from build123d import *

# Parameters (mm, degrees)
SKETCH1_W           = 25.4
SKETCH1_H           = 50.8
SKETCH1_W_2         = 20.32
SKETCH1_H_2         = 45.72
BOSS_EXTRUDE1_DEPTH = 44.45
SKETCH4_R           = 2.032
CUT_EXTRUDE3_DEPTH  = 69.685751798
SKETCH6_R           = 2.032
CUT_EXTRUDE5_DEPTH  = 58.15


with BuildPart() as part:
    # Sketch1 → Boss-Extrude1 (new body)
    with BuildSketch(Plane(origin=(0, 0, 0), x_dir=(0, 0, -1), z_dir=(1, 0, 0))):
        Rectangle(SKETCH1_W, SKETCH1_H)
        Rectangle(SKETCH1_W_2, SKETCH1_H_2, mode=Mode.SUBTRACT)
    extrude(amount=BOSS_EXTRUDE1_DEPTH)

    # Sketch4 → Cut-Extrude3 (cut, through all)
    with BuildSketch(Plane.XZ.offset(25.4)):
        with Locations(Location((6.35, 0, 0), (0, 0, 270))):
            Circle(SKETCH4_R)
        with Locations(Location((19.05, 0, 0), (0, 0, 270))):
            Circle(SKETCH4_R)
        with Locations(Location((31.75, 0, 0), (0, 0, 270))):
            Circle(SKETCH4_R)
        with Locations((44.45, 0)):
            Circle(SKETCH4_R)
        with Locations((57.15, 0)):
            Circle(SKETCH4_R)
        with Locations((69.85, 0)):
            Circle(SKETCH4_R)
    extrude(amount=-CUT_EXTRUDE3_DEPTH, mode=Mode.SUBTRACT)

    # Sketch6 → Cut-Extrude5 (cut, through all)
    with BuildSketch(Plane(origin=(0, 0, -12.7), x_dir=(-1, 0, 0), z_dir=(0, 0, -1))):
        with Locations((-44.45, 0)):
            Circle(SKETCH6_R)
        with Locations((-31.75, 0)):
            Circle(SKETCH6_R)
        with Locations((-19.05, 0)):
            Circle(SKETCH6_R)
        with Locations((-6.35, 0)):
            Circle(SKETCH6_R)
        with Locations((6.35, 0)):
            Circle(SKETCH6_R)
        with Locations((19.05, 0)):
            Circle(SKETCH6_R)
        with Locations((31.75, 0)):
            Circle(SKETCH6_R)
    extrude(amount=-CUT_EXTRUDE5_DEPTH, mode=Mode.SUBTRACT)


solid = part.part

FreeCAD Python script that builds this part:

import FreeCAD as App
import Part
import Sketcher
from FreeCAD import Vector
Q = App.Units.Quantity

doc = App.newDocument("Part")
body = doc.addObject("PartDesign::Body", "Body")

# Sketch on YZ plane
sketch1 = body.newObject("Sketcher::SketchObject", "Sketch")
sketch1.AttachmentSupport = (doc.getObject("YZ_Plane"), [""])
sketch1.MapMode = "FlatFace"
sketch1.addGeometry(Part.LineSegment(Vector(25, 13, 0), Vector(-25, 13, 0)), False)
sketch1.addGeometry(Part.LineSegment(Vector(-25, 13, 0), Vector(-25, -13, 0)), False)
sketch1.addGeometry(Part.LineSegment(Vector(-25, -13, 0), Vector(25, -13, 0)), False)
sketch1.addGeometry(Part.LineSegment(Vector(25, -13, 0), Vector(25, 13, 0)), False)
sketch1.addGeometry(Part.LineSegment(Vector(-23, -10, 0), Vector(-23, 10, 0)), False)
sketch1.addGeometry(Part.LineSegment(Vector(-23, 10, 0), Vector(23, 10, 0)), False)
sketch1.addGeometry(Part.LineSegment(Vector(23, 10, 0), Vector(23, -10, 0)), False)
sketch1.addGeometry(Part.LineSegment(Vector(23, -10, 0), Vector(-23, -10, 0)), False)
sketch1.addConstraint(Sketcher.Constraint("Coincident", 0, 2, 1, 1))
sketch1.addConstraint(Sketcher.Constraint("Coincident", 1, 2, 2, 1))
sketch1.addConstraint(Sketcher.Constraint("Coincident", 2, 2, 3, 1))
sketch1.addConstraint(Sketcher.Constraint("Coincident", 3, 2, 0, 1))
sketch1.addConstraint(Sketcher.Constraint("Coincident", 4, 2, 5, 1))
sketch1.addConstraint(Sketcher.Constraint("Coincident", 5, 2, 6, 1))
sketch1.addConstraint(Sketcher.Constraint("Coincident", 6, 2, 7, 1))
sketch1.addConstraint(Sketcher.Constraint("Coincident", 7, 2, 4, 1))
sketch1.addConstraint(Sketcher.Constraint("Horizontal", 0))
sketch1.addConstraint(Sketcher.Constraint("Vertical", 1))
sketch1.addConstraint(Sketcher.Constraint("Horizontal", 2))
sketch1.addConstraint(Sketcher.Constraint("Vertical", 3))
sketch1.addConstraint(Sketcher.Constraint("Vertical", 4))
sketch1.addConstraint(Sketcher.Constraint("Horizontal", 5))
sketch1.addConstraint(Sketcher.Constraint("Vertical", 6))
sketch1.addConstraint(Sketcher.Constraint("Horizontal", 7))
sketch1.addConstraint(Sketcher.Constraint("Symmetric", 0, 2, 2, 2, -1, 1))
sketch1.addConstraint(Sketcher.Constraint("Symmetric", 4, 2, 6, 2, -1, 1))
sketch1.addConstraint(Sketcher.Constraint("DistanceX", 0, 2, 0, 1, Q("2 in")))
sketch1.addConstraint(Sketcher.Constraint("DistanceY", 1, 2, 1, 1, Q("1 in")))
sketch1.addConstraint(Sketcher.Constraint("DistanceX", 5, 1, 5, 2, Q("1.8 in")))
sketch1.addConstraint(Sketcher.Constraint("DistanceY", 4, 1, 4, 2, Q("0.8 in")))
pad1 = body.newObject("PartDesign::Pad", "Pad")
pad1.Profile = sketch1
pad1.Length = Q("1.75 in")

# Sketch on XZ plane
sketch2 = body.newObject("Sketcher::SketchObject", "Sketch001")
sketch2.AttachmentSupport = (doc.getObject("XZ_Plane"), [""])
sketch2.MapMode = "FlatFace"
sketch2.AttachmentOffset = App.Placement(Vector(0, 0, 1 * 25.4), App.Rotation())
sketch2.addGeometry(Part.Circle(Vector(6.3, 0, 0), Vector(0, 0, 1), 2), False)
sketch2.addGeometry(Part.Circle(Vector(19.1, 0, 0), Vector(0, 0, 1), 2), False)
sketch2.addGeometry(Part.Circle(Vector(31.8, 0, 0), Vector(0, 0, 1), 2), False)
sketch2.addGeometry(Part.Circle(Vector(44.5, 0, 0), Vector(0, 0, 1), 2), False)
sketch2.addGeometry(Part.Circle(Vector(57.1, 0, 0), Vector(0, 0, 1), 2), False)
sketch2.addGeometry(Part.Circle(Vector(69.8, 0, 0), Vector(0, 0, 1), 2), False)
sketch2.addConstraint(Sketcher.Constraint("Equal", 0, 1))
sketch2.addConstraint(Sketcher.Constraint("Equal", 1, 2))
sketch2.addConstraint(Sketcher.Constraint("Equal", 2, 3))
sketch2.addConstraint(Sketcher.Constraint("Equal", 3, 4))
sketch2.addConstraint(Sketcher.Constraint("Equal", 4, 5))
sketch2.addConstraint(Sketcher.Constraint("PointOnObject", 0, 3, -1))
sketch2.addConstraint(Sketcher.Constraint("PointOnObject", 1, 3, -1))
sketch2.addConstraint(Sketcher.Constraint("PointOnObject", 2, 3, -1))
sketch2.addConstraint(Sketcher.Constraint("PointOnObject", 3, 3, -1))
sketch2.addConstraint(Sketcher.Constraint("PointOnObject", 4, 3, -1))
sketch2.addConstraint(Sketcher.Constraint("PointOnObject", 5, 3, -1))
sketch2.addConstraint(Sketcher.Constraint("Diameter", 0, Q("0.16 in")))
sketch2.addConstraint(Sketcher.Constraint("DistanceX", 0, 3, 2, 3, Q("1 in")))
sketch2.addConstraint(Sketcher.Constraint("DistanceX", 1, 3, 3, 3, Q("1 in")))
sketch2.addConstraint(Sketcher.Constraint("DistanceX", 2, 3, 4, 3, Q("1 in")))
sketch2.addConstraint(Sketcher.Constraint("DistanceX", 3, 3, 5, 3, Q("1 in")))
sketch2.addConstraint(Sketcher.Constraint("DistanceX", 0, 3, 1, 3, Q("0.5 in")))
sketch2.addConstraint(Sketcher.Constraint("DistanceX", -1, 1, 0, 3, Q("0.25 in")))
pocket1 = body.newObject("PartDesign::Pocket", "Pocket")
pocket1.Profile = sketch2
pocket1.Type = "ThroughAll"

# Sketch on XY plane
sketch3 = body.newObject("Sketcher::SketchObject", "Sketch002")
sketch3.AttachmentSupport = (doc.getObject("XY_Plane"), [""])
sketch3.MapMode = "FlatFace"
sketch3.AttachmentOffset = App.Placement(Vector(0, 0, -0.5 * 25.4), App.Rotation())
sketch3.addGeometry(Part.Circle(Vector(44.5, 0, 0), Vector(0, 0, 1), 2), False)
sketch3.addGeometry(Part.Circle(Vector(31.8, 0, 0), Vector(0, 0, 1), 2), False)
sketch3.addGeometry(Part.Circle(Vector(19.1, 0, 0), Vector(0, 0, 1), 2), False)
sketch3.addGeometry(Part.Circle(Vector(6.3, 0, 0), Vector(0, 0, 1), 2), False)
sketch3.addGeometry(Part.Circle(Vector(-6.3, 0, 0), Vector(0, 0, 1), 2), False)
sketch3.addGeometry(Part.Circle(Vector(-19.1, 0, 0), Vector(0, 0, 1), 2), False)
sketch3.addGeometry(Part.Circle(Vector(-31.8, 0, 0), Vector(0, 0, 1), 2), False)
sketch3.addConstraint(Sketcher.Constraint("Equal", 0, 1))
sketch3.addConstraint(Sketcher.Constraint("Equal", 1, 2))
sketch3.addConstraint(Sketcher.Constraint("Equal", 2, 3))
sketch3.addConstraint(Sketcher.Constraint("Equal", 3, 4))
sketch3.addConstraint(Sketcher.Constraint("Equal", 4, 5))
sketch3.addConstraint(Sketcher.Constraint("Equal", 5, 6))
sketch3.addConstraint(Sketcher.Constraint("Symmetric", 3, 3, 4, 3, -1, 1))
sketch3.addConstraint(Sketcher.Constraint("Symmetric", 2, 3, 5, 3, -1, 1))
sketch3.addConstraint(Sketcher.Constraint("Symmetric", 1, 3, 6, 3, -1, 1))
sketch3.addConstraint(Sketcher.Constraint("PointOnObject", 0, 3, -1))
sketch3.addConstraint(Sketcher.Constraint("PointOnObject", 1, 3, -1))
sketch3.addConstraint(Sketcher.Constraint("PointOnObject", 2, 3, -1))
sketch3.addConstraint(Sketcher.Constraint("PointOnObject", 3, 3, -1))
sketch3.addConstraint(Sketcher.Constraint("Diameter", 0, Q("0.16 in")))
sketch3.addConstraint(Sketcher.Constraint("DistanceX", 2, 3, 0, 3, Q("1 in")))
sketch3.addConstraint(Sketcher.Constraint("DistanceX", 3, 3, 1, 3, Q("1 in")))
sketch3.addConstraint(Sketcher.Constraint("DistanceX", 4, 3, 2, 3, Q("1 in")))
sketch3.addConstraint(Sketcher.Constraint("DistanceX", 1, 3, 0, 3, Q("0.5 in")))
pocket2 = body.newObject("PartDesign::Pocket", "Pocket001")
pocket2.Profile = sketch3
pocket2.Type = "ThroughAll"
pocket2.Reversed = True

doc.recompute()
